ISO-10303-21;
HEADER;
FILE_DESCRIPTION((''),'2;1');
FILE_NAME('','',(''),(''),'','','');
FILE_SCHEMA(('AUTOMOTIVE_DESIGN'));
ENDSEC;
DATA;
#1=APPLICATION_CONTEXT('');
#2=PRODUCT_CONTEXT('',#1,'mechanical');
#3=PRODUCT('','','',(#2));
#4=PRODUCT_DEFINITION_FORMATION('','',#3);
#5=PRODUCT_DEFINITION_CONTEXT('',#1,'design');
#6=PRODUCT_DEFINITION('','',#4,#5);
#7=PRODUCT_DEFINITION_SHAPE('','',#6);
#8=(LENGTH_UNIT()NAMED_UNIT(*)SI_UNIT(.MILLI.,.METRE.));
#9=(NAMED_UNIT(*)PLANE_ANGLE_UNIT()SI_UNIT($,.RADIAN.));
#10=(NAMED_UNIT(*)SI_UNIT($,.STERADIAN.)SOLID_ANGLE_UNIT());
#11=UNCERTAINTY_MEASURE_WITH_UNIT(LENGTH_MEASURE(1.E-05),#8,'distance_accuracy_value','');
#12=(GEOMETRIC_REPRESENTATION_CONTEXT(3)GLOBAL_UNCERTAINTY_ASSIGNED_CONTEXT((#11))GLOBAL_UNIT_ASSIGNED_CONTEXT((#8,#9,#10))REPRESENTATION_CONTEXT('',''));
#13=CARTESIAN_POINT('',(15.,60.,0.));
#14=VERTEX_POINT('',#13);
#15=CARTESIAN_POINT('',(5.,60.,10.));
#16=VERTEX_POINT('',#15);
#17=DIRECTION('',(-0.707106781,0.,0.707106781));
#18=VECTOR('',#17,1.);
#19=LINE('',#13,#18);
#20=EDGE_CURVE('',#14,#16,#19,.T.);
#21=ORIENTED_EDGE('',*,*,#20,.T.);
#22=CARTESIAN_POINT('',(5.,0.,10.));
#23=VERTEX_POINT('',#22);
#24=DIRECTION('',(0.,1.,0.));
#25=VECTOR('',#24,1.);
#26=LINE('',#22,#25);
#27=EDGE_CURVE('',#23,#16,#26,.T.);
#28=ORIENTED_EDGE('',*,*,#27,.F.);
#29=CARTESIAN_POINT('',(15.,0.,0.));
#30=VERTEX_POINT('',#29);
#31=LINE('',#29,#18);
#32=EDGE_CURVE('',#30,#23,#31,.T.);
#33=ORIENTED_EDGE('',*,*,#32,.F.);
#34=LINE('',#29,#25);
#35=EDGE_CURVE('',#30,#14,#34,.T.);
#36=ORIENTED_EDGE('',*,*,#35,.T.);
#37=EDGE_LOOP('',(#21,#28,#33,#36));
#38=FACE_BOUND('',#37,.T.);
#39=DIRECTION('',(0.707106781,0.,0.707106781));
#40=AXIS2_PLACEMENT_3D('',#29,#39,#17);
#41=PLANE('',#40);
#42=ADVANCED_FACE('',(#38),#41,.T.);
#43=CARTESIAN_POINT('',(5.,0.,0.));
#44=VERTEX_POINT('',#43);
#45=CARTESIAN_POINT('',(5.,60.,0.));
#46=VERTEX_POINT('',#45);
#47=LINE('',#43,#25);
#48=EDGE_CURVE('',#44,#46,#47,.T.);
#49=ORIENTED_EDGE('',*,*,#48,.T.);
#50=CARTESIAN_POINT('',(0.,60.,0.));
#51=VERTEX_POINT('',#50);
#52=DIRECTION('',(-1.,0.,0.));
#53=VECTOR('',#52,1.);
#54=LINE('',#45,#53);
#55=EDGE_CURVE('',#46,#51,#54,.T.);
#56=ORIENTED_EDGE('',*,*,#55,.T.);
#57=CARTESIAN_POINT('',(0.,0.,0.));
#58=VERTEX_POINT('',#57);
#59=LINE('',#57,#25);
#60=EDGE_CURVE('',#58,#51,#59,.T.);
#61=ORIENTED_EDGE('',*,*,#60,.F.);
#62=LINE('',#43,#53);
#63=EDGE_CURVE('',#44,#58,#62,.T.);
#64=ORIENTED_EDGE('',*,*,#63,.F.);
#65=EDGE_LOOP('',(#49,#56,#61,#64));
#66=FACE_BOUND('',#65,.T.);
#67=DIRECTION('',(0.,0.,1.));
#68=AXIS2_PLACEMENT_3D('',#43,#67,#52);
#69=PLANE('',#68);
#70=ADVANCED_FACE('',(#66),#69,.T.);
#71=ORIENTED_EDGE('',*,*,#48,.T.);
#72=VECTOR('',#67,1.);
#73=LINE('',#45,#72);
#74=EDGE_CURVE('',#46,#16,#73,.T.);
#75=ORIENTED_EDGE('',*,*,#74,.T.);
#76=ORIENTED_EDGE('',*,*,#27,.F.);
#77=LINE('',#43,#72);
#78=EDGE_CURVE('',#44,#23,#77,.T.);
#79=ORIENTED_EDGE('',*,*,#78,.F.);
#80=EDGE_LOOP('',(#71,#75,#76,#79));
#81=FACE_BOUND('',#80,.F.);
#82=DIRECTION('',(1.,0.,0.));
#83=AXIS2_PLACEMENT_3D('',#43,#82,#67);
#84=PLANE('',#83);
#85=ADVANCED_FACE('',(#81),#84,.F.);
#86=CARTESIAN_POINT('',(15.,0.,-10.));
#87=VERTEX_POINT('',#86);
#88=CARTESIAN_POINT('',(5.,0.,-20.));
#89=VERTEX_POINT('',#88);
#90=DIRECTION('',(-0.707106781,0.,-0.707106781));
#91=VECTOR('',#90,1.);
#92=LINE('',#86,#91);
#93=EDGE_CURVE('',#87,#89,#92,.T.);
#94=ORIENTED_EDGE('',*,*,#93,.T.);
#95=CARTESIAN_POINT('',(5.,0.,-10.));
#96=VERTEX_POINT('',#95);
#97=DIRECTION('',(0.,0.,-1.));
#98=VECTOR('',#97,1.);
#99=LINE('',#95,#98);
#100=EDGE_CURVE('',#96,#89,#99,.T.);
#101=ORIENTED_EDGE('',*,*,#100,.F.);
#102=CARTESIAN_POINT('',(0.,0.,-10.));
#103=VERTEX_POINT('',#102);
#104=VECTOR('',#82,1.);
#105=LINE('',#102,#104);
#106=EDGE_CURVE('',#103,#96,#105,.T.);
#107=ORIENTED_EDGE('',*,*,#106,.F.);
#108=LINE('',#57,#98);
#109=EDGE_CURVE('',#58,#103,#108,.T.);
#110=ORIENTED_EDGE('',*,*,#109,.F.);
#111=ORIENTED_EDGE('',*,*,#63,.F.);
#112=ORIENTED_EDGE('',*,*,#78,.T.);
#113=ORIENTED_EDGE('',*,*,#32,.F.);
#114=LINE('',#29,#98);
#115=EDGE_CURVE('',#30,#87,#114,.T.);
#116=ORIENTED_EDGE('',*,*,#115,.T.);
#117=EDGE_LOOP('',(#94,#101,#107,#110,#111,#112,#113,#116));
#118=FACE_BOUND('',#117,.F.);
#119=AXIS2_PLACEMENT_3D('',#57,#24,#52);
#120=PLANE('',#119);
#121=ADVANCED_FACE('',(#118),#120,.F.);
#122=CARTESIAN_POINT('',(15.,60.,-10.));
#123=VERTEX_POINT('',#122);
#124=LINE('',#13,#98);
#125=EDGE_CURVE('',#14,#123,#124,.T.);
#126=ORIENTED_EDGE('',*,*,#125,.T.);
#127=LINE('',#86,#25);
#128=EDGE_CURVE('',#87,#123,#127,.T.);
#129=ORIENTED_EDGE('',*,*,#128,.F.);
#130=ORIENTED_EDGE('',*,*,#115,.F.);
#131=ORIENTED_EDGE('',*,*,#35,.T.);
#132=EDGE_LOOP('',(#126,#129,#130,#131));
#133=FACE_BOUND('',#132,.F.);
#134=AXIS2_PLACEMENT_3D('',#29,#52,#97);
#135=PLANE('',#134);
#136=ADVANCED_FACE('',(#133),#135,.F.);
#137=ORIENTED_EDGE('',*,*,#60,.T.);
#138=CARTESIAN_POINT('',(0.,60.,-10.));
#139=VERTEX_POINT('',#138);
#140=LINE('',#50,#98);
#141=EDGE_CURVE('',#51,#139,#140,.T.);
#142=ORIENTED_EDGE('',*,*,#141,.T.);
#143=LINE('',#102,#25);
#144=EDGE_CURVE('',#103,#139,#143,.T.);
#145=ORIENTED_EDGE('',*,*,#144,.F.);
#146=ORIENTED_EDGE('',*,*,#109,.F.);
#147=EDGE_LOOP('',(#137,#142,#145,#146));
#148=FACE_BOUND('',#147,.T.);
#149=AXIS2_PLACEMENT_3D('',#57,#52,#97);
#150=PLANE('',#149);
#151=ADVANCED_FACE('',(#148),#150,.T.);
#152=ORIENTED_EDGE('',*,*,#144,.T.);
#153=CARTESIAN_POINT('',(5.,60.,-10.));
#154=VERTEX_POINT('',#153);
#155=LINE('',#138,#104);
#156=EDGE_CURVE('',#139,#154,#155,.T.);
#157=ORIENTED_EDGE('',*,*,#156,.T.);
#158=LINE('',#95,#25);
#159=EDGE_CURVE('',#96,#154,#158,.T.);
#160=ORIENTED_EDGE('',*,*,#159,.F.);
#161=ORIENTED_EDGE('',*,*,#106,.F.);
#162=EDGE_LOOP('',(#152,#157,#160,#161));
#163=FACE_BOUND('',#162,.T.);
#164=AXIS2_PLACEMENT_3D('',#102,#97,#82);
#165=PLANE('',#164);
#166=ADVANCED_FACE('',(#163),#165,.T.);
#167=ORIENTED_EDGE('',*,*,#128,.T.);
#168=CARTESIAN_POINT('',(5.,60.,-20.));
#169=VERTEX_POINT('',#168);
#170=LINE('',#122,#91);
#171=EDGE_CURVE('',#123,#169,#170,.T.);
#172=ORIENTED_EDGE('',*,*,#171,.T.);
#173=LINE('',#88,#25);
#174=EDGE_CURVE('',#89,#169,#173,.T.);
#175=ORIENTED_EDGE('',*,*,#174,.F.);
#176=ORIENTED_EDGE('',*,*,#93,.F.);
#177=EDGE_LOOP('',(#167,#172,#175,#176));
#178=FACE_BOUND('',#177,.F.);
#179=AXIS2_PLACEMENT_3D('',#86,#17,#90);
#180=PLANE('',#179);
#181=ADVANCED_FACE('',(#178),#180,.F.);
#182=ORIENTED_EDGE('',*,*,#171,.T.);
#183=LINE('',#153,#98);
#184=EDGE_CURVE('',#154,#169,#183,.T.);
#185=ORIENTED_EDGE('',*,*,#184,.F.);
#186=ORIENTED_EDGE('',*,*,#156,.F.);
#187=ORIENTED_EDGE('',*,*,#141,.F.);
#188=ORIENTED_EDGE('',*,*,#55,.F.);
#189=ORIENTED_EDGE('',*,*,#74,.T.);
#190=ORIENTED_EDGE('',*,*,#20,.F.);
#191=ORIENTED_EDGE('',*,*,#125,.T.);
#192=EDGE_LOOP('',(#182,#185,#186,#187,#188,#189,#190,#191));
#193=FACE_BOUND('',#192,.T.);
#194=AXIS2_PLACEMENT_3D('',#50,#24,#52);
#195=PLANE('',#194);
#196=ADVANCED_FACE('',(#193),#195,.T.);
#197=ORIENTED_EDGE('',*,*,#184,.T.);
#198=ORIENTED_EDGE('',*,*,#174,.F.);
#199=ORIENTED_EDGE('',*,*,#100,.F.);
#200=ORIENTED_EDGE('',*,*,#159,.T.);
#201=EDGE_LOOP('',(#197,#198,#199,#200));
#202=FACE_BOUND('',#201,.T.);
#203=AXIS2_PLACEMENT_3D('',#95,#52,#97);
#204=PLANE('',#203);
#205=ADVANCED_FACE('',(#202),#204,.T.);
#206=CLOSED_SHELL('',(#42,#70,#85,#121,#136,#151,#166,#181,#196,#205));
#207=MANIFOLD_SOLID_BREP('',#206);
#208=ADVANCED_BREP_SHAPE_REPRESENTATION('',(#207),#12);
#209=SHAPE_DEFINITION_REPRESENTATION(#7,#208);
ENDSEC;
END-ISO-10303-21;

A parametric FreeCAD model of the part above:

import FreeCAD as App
import Part
import Sketcher

V = App.Vector


def add_polygon(sketch, points):
    """Adds a closed chain of lines whose ends are joined by coincident constraints."""
    first, n = sketch.GeometryCount, len(points)
    for a, b in zip(points, points[1:] + points[:1]):
        sketch.addGeometry(Part.LineSegment(App.Vector(*a, 0), App.Vector(*b, 0)), False)
    for i in range(n):
        sketch.addConstraint(Sketcher.Constraint("Coincident", first + i, 2, first + (i + 1) % n, 1))

doc = App.newDocument("Part")
body = doc.addObject("PartDesign::Body", "Body")

# Sketch on XZ plane
sketch1 = doc.addObject("Sketcher::SketchObject", "Sketch")
body.addObject(sketch1)
sketch1.AttachmentSupport = (doc.XZ_Plane, [""])
sketch1.MapMode = "FlatFace"
add_polygon(sketch1, [(0, -10), (0, 0), (5, 0), (5, 10), (15, 0), (15, -10), (5, -20), (5, -10)])  # lines 0-7
sketch1.addConstraint(Sketcher.Constraint("Vertical", 0))
sketch1.addConstraint(Sketcher.Constraint("Horizontal", 1))
sketch1.addConstraint(Sketcher.Constraint("Vertical", 2))
sketch1.addConstraint(Sketcher.Constraint("Vertical", 4))
sketch1.addConstraint(Sketcher.Constraint("Vertical", 6))
sketch1.addConstraint(Sketcher.Constraint("Horizontal", 7))
sketch1.addConstraint(Sketcher.Constraint("Coincident", 0, 2, -1, 1))
sketch1.addConstraint(Sketcher.Constraint("Symmetric", 2, 2, 6, 2, -1))
sketch1.addConstraint(Sketcher.Constraint("PointOnObject", 3, 2, -1))
sketch1.addConstraint(Sketcher.Constraint("Perpendicular", 3, 5))
sketch1.addConstraint(Sketcher.Constraint("Horizontal", 4, 2, 6, 2))
sketch1.addConstraint(Sketcher.Constraint("Equal", 4, 6))
sketch1.addConstraint(Sketcher.Constraint("DistanceX", 1, 1, 1, 2, 5.0))
sketch1.addConstraint(Sketcher.Constraint("DistanceY", 0, 1, 0, 2, 10.0))
pad1 = doc.addObject("PartDesign::Pad", "Pad")
body.addObject(pad1)
pad1.Profile = sketch1
pad1.Length = 60
pad1.Reversed = True

doc.recompute()
